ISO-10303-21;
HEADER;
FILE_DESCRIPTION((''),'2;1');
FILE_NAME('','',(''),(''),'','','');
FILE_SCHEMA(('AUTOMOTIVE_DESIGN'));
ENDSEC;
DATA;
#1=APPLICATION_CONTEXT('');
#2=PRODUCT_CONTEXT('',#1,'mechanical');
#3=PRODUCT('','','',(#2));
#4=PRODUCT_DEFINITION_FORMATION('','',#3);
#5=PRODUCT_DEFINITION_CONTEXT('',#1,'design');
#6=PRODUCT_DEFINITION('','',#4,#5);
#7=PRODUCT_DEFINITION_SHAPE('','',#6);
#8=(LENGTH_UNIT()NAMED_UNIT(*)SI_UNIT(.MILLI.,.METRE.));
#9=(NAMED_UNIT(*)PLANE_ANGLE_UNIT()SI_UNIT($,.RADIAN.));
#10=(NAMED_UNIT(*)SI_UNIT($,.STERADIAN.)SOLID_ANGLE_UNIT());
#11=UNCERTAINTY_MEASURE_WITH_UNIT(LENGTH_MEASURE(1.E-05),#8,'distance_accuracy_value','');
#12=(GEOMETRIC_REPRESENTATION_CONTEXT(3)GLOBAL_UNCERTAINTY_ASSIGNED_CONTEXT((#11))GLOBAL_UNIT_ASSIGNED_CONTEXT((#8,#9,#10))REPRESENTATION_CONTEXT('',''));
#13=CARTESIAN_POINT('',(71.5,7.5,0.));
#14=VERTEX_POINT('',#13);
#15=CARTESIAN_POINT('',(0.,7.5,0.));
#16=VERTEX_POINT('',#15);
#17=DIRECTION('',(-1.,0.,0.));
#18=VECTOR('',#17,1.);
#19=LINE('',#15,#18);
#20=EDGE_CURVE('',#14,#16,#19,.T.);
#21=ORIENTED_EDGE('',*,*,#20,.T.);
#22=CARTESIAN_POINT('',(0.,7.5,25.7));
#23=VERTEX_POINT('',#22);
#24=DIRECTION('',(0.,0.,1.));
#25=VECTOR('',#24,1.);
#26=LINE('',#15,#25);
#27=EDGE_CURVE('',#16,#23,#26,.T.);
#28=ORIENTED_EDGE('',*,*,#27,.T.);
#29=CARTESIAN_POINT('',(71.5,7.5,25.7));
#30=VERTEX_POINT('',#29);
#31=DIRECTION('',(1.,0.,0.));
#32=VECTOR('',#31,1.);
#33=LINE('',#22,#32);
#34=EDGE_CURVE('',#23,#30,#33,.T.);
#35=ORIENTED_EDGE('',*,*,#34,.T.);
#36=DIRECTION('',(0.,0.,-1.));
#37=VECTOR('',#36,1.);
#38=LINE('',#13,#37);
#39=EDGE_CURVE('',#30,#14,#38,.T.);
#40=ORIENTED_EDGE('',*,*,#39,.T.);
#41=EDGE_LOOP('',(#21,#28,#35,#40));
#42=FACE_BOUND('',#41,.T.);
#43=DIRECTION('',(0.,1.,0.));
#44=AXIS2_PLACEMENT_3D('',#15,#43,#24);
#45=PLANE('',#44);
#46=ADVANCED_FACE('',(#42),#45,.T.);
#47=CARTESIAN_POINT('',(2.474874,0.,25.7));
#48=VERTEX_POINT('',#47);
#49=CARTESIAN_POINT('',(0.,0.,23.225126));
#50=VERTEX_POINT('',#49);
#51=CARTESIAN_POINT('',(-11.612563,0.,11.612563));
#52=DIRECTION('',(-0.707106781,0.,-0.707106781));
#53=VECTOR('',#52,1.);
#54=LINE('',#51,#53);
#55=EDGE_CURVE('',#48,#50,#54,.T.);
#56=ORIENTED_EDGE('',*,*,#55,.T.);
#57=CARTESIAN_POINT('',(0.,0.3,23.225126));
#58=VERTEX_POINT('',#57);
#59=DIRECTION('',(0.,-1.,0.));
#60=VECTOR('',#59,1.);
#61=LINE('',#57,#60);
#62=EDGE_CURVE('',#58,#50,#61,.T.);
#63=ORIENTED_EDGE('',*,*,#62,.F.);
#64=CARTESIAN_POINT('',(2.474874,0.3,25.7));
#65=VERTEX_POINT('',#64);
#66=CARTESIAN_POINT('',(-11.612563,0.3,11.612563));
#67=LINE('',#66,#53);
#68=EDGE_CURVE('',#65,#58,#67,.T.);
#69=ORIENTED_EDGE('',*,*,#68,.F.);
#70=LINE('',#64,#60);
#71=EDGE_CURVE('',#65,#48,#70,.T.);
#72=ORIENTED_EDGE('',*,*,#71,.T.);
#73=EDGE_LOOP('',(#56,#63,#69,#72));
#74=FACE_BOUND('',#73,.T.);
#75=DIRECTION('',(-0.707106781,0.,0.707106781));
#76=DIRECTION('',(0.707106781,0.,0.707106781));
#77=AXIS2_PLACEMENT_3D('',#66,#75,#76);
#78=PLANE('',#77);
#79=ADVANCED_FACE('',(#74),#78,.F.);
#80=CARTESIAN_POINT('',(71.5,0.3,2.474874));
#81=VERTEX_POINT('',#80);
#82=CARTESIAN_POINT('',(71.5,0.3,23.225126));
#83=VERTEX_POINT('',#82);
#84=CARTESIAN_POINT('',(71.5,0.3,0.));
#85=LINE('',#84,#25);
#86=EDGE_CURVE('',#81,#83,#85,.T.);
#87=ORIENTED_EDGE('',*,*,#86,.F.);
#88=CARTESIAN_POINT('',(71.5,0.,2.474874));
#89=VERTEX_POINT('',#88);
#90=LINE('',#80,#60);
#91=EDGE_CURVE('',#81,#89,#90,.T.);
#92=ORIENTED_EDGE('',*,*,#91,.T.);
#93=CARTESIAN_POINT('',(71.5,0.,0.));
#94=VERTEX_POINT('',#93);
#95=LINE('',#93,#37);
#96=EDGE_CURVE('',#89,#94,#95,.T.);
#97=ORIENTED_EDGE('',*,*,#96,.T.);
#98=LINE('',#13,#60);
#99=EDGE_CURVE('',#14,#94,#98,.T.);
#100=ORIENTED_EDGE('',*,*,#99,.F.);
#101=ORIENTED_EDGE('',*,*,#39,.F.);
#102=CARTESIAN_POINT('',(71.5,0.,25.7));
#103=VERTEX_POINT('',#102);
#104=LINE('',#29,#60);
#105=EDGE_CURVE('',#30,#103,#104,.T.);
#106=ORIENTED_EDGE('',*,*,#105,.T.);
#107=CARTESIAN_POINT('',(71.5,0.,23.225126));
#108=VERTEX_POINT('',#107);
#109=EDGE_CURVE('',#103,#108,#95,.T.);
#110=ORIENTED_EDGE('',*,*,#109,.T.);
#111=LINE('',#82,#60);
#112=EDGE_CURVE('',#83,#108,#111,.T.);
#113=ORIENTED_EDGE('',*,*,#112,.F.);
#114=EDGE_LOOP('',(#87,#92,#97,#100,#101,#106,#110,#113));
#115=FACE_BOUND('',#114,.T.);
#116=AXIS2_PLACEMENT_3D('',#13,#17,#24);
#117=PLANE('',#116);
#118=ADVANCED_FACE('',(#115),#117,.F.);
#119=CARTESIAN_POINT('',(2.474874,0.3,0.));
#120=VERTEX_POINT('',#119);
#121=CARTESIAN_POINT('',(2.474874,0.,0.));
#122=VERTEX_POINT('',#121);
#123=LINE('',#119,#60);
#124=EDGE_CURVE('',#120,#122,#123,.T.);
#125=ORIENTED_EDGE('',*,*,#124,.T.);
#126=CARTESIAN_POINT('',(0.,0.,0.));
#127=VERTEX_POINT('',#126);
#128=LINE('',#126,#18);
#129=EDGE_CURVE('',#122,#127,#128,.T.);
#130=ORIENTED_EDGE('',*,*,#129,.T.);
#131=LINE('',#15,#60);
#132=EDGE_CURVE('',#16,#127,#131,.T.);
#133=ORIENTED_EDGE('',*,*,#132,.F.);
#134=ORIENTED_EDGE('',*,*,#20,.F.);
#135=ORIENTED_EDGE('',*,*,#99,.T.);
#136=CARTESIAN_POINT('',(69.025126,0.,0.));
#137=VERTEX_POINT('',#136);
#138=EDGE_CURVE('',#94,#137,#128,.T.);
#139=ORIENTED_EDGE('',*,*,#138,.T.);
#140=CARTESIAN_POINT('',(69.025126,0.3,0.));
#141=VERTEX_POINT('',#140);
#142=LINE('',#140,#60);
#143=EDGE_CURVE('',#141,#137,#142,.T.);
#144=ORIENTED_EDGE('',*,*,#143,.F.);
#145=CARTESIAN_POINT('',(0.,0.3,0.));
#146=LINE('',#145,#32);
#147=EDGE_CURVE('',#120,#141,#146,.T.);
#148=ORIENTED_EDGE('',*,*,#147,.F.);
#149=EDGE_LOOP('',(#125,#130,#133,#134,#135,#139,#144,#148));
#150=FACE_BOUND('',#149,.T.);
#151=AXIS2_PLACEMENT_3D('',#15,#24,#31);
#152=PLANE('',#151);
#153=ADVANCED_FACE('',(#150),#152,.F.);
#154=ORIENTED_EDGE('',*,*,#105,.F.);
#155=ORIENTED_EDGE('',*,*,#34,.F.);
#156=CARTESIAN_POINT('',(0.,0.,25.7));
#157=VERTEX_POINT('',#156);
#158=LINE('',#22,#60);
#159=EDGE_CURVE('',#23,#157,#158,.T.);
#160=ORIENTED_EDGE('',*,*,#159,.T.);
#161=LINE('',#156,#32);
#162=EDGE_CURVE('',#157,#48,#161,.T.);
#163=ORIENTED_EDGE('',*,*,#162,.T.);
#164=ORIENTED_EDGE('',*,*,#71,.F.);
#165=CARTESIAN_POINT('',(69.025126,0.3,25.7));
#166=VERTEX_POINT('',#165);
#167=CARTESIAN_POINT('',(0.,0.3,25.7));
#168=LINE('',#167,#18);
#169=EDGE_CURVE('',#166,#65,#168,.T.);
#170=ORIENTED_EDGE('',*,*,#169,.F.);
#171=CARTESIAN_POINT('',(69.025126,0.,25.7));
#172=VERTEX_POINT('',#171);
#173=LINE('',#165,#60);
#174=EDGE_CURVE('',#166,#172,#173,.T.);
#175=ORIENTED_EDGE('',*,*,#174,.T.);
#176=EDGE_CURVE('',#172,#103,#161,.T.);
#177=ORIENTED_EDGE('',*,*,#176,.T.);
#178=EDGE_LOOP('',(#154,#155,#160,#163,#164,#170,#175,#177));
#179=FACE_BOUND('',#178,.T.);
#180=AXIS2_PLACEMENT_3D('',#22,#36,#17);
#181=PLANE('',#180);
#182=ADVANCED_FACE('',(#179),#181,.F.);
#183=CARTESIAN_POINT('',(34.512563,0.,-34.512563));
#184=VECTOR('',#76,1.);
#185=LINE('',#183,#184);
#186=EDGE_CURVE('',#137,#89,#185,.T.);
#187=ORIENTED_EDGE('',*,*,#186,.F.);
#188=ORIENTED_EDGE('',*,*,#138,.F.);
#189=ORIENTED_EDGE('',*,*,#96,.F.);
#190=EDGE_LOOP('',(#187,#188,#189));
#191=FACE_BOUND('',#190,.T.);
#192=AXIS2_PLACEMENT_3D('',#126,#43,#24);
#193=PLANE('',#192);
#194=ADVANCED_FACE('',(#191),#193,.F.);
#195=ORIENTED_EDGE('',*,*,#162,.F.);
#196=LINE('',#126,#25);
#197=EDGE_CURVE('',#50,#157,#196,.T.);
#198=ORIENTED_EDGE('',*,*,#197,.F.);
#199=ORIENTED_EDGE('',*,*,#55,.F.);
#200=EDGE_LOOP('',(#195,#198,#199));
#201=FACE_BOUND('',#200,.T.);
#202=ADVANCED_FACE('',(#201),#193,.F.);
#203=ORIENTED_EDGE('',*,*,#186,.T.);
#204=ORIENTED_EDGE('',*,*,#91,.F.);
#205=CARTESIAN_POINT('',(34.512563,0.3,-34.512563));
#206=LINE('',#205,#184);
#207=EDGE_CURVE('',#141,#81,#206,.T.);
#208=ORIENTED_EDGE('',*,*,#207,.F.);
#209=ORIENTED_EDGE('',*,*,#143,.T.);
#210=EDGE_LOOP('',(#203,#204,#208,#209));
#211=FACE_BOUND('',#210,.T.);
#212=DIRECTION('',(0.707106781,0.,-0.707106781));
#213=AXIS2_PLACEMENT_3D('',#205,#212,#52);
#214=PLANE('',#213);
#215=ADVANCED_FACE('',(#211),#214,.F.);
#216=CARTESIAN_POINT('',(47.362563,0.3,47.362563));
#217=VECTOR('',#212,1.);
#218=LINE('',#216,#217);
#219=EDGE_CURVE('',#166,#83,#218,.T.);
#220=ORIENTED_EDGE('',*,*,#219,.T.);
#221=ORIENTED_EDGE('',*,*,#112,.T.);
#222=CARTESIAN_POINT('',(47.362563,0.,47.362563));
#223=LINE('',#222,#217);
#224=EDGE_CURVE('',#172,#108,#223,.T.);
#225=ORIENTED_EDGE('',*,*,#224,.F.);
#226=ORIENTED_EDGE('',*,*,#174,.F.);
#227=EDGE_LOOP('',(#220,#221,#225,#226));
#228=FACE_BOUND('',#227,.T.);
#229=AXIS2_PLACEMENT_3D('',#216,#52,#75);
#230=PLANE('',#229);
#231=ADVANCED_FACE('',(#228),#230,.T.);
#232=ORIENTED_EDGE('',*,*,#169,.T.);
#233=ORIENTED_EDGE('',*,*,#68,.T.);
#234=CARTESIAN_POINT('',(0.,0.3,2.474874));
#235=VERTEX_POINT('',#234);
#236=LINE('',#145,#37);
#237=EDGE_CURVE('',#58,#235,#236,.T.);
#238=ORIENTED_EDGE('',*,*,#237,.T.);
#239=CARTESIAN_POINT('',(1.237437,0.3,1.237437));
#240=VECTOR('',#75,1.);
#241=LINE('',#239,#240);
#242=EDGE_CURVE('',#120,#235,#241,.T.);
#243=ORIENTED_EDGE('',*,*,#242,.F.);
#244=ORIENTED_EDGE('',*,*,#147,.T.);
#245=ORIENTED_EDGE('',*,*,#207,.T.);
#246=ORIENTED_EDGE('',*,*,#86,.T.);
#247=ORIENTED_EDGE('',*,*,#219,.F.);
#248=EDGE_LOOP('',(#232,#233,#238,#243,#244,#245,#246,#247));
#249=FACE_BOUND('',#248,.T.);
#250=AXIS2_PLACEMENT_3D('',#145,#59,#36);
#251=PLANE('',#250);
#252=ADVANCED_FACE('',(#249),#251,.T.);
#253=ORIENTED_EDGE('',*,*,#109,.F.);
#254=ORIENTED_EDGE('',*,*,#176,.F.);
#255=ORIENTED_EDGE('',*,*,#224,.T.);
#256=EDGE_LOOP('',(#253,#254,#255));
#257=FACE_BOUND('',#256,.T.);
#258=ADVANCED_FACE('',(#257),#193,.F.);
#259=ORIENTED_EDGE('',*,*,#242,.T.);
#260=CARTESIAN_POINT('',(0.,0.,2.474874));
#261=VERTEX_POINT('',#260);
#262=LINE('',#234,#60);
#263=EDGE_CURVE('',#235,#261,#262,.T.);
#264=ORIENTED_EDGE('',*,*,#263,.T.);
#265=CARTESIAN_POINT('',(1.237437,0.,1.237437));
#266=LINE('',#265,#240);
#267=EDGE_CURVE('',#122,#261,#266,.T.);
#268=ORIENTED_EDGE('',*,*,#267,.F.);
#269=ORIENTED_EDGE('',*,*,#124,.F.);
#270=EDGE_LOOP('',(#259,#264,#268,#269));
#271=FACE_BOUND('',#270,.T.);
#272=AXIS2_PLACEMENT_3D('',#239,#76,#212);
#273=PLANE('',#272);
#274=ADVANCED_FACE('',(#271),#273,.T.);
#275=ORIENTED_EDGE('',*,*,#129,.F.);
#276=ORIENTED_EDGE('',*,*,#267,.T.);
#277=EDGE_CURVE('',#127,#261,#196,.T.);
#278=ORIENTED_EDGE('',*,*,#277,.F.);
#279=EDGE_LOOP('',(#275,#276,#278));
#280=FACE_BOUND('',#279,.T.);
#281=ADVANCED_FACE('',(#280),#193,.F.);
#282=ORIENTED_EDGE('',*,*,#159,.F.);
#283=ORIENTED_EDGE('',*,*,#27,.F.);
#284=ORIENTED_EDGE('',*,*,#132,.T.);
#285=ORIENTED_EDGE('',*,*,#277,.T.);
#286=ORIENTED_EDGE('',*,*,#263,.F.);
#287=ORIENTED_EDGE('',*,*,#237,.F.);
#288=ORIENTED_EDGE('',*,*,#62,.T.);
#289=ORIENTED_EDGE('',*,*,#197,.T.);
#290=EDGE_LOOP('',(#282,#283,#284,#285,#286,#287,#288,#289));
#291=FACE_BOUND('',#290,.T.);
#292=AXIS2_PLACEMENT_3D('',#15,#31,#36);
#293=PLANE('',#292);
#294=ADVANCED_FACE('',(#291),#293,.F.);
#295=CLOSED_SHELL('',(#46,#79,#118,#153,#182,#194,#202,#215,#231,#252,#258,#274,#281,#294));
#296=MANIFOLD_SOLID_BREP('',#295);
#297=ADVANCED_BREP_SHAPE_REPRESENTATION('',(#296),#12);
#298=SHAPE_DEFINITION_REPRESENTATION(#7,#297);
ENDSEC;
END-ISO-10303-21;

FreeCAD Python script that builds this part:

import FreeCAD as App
import Part
import Sketcher

V = App.Vector
Q = App.Units.Quantity

doc = App.newDocument("Part")
body = doc.addObject("PartDesign::Body", "Body")

# Sketch on XZ plane
sketch1 = doc.addObject("Sketcher::SketchObject", "Sketch")
body.addObject(sketch1)
sketch1.AttachmentSupport = (doc.XZ_Plane, [""])
sketch1.MapMode = "FlatFace"
sketch1.addGeometry([
    Part.LineSegment(V(0, 0, 0), V(0, 26, 0)),
    Part.LineSegment(V(0, 26, 0), V(72, 26, 0)),
    Part.LineSegment(V(72, 26, 0), V(72, 0, 0)),
    Part.LineSegment(V(72, 0, 0), V(0, 0, 0)),
], False)
sketch1.addConstraint([
    Sketcher.Constraint("Coincident", 0, 2, 1, 1),
    Sketcher.Constraint("Coincident", 1, 2, 2, 1),
    Sketcher.Constraint("Coincident", 2, 2, 3, 1),
    Sketcher.Constraint("Coincident", 3, 2, 0, 1),
    Sketcher.Constraint("Vertical", 0),
    Sketcher.Constraint("Horizontal", 1),
    Sketcher.Constraint("Vertical", 2),
    Sketcher.Constraint("Horizontal", 3),
    Sketcher.Constraint("Coincident", 3, 2, -1, 1),
    Sketcher.Constraint("DistanceX", 1, 1, 1, 2, Q("71.5 mm")),
    Sketcher.Constraint("DistanceY", 0, 1, 0, 2, Q("25.7 mm")),
])
pad1 = doc.addObject("PartDesign::Pad", "Pad")
body.addObject(pad1)
pad1.Profile = sketch1
pad1.Length = 7.5
pad1.Reversed = True

# Sketch on XZ plane
sketch2 = doc.addObject("Sketcher::SketchObject", "Sketch001")
body.addObject(sketch2)
sketch2.AttachmentSupport = (doc.XZ_Plane, [""])
sketch2.MapMode = "FlatFace"
sketch2.addGeometry([
    Part.LineSegment(V(69, 25.7, 0), V(2.5, 25.7, 0)),  # 0
    Part.LineSegment(V(2.5, 25.7, 0), V(0, 23.2, 0)),  # 1
    Part.LineSegment(V(0, 23.2, 0), V(0, 2.5, 0)),  # 2
    Part.LineSegment(V(0, 2.5, 0), V(2.5, 0, 0)),  # 3
    Part.LineSegment(V(2.5, 0, 0), V(69, 0, 0)),  # 4
    Part.LineSegment(V(69, 0, 0), V(71.5, 2.5, 0)),  # 5
    Part.LineSegment(V(71.5, 2.5, 0), V(71.5, 23.2, 0)),  # 6
    Part.LineSegment(V(71.5, 23.2, 0), V(69, 25.7, 0)),  # 7
], False)
sketch2.addConstraint([
    Sketcher.Constraint("Coincident", 0, 2, 1, 1),
    Sketcher.Constraint("Coincident", 1, 2, 2, 1),
    Sketcher.Constraint("Coincident", 2, 2, 3, 1),
    Sketcher.Constraint("Coincident", 3, 2, 4, 1),
    Sketcher.Constraint("Coincident", 4, 2, 5, 1),
    Sketcher.Constraint("Coincident", 5, 2, 6, 1),
    Sketcher.Constraint("Coincident", 6, 2, 7, 1),
    Sketcher.Constraint("Coincident", 7, 2, 0, 1),
    Sketcher.Constraint("Horizontal", 0),
    Sketcher.Constraint("Vertical", 2),
    Sketcher.Constraint("Horizontal", 4),
    Sketcher.Constraint("Vertical", 6),
    Sketcher.Constraint("PointOnObject", 1, 2, -2),
    Sketcher.Constraint("PointOnObject", 3, 2, -1),
    Sketcher.Constraint("Perpendicular", 1, 3),
    Sketcher.Constraint("Perpendicular", 3, 5),
    Sketcher.Constraint("Perpendicular", 5, 7),
    Sketcher.Constraint("Horizontal", 2, 2, 5, 2),
    Sketcher.Constraint("Horizontal", 1, 2, 6, 2),
    Sketcher.Constraint("Vertical", 0, 2, 3, 2),
    Sketcher.Constraint("Vertical", 4, 2, 7, 2),
    Sketcher.Constraint("Distance", 1, Q("3.5 mm")),
    Sketcher.Constraint("DistanceY", -1, 1, 0, 2, Q("25.7 mm")),
    Sketcher.Constraint("DistanceX", -1, 1, 5, 2, Q("71.5 mm")),
])
pocket1 = doc.addObject("PartDesign::Pocket", "Pocket")
body.addObject(pocket1)
pocket1.Profile = sketch2
pocket1.Length = 0.3

doc.recompute()
